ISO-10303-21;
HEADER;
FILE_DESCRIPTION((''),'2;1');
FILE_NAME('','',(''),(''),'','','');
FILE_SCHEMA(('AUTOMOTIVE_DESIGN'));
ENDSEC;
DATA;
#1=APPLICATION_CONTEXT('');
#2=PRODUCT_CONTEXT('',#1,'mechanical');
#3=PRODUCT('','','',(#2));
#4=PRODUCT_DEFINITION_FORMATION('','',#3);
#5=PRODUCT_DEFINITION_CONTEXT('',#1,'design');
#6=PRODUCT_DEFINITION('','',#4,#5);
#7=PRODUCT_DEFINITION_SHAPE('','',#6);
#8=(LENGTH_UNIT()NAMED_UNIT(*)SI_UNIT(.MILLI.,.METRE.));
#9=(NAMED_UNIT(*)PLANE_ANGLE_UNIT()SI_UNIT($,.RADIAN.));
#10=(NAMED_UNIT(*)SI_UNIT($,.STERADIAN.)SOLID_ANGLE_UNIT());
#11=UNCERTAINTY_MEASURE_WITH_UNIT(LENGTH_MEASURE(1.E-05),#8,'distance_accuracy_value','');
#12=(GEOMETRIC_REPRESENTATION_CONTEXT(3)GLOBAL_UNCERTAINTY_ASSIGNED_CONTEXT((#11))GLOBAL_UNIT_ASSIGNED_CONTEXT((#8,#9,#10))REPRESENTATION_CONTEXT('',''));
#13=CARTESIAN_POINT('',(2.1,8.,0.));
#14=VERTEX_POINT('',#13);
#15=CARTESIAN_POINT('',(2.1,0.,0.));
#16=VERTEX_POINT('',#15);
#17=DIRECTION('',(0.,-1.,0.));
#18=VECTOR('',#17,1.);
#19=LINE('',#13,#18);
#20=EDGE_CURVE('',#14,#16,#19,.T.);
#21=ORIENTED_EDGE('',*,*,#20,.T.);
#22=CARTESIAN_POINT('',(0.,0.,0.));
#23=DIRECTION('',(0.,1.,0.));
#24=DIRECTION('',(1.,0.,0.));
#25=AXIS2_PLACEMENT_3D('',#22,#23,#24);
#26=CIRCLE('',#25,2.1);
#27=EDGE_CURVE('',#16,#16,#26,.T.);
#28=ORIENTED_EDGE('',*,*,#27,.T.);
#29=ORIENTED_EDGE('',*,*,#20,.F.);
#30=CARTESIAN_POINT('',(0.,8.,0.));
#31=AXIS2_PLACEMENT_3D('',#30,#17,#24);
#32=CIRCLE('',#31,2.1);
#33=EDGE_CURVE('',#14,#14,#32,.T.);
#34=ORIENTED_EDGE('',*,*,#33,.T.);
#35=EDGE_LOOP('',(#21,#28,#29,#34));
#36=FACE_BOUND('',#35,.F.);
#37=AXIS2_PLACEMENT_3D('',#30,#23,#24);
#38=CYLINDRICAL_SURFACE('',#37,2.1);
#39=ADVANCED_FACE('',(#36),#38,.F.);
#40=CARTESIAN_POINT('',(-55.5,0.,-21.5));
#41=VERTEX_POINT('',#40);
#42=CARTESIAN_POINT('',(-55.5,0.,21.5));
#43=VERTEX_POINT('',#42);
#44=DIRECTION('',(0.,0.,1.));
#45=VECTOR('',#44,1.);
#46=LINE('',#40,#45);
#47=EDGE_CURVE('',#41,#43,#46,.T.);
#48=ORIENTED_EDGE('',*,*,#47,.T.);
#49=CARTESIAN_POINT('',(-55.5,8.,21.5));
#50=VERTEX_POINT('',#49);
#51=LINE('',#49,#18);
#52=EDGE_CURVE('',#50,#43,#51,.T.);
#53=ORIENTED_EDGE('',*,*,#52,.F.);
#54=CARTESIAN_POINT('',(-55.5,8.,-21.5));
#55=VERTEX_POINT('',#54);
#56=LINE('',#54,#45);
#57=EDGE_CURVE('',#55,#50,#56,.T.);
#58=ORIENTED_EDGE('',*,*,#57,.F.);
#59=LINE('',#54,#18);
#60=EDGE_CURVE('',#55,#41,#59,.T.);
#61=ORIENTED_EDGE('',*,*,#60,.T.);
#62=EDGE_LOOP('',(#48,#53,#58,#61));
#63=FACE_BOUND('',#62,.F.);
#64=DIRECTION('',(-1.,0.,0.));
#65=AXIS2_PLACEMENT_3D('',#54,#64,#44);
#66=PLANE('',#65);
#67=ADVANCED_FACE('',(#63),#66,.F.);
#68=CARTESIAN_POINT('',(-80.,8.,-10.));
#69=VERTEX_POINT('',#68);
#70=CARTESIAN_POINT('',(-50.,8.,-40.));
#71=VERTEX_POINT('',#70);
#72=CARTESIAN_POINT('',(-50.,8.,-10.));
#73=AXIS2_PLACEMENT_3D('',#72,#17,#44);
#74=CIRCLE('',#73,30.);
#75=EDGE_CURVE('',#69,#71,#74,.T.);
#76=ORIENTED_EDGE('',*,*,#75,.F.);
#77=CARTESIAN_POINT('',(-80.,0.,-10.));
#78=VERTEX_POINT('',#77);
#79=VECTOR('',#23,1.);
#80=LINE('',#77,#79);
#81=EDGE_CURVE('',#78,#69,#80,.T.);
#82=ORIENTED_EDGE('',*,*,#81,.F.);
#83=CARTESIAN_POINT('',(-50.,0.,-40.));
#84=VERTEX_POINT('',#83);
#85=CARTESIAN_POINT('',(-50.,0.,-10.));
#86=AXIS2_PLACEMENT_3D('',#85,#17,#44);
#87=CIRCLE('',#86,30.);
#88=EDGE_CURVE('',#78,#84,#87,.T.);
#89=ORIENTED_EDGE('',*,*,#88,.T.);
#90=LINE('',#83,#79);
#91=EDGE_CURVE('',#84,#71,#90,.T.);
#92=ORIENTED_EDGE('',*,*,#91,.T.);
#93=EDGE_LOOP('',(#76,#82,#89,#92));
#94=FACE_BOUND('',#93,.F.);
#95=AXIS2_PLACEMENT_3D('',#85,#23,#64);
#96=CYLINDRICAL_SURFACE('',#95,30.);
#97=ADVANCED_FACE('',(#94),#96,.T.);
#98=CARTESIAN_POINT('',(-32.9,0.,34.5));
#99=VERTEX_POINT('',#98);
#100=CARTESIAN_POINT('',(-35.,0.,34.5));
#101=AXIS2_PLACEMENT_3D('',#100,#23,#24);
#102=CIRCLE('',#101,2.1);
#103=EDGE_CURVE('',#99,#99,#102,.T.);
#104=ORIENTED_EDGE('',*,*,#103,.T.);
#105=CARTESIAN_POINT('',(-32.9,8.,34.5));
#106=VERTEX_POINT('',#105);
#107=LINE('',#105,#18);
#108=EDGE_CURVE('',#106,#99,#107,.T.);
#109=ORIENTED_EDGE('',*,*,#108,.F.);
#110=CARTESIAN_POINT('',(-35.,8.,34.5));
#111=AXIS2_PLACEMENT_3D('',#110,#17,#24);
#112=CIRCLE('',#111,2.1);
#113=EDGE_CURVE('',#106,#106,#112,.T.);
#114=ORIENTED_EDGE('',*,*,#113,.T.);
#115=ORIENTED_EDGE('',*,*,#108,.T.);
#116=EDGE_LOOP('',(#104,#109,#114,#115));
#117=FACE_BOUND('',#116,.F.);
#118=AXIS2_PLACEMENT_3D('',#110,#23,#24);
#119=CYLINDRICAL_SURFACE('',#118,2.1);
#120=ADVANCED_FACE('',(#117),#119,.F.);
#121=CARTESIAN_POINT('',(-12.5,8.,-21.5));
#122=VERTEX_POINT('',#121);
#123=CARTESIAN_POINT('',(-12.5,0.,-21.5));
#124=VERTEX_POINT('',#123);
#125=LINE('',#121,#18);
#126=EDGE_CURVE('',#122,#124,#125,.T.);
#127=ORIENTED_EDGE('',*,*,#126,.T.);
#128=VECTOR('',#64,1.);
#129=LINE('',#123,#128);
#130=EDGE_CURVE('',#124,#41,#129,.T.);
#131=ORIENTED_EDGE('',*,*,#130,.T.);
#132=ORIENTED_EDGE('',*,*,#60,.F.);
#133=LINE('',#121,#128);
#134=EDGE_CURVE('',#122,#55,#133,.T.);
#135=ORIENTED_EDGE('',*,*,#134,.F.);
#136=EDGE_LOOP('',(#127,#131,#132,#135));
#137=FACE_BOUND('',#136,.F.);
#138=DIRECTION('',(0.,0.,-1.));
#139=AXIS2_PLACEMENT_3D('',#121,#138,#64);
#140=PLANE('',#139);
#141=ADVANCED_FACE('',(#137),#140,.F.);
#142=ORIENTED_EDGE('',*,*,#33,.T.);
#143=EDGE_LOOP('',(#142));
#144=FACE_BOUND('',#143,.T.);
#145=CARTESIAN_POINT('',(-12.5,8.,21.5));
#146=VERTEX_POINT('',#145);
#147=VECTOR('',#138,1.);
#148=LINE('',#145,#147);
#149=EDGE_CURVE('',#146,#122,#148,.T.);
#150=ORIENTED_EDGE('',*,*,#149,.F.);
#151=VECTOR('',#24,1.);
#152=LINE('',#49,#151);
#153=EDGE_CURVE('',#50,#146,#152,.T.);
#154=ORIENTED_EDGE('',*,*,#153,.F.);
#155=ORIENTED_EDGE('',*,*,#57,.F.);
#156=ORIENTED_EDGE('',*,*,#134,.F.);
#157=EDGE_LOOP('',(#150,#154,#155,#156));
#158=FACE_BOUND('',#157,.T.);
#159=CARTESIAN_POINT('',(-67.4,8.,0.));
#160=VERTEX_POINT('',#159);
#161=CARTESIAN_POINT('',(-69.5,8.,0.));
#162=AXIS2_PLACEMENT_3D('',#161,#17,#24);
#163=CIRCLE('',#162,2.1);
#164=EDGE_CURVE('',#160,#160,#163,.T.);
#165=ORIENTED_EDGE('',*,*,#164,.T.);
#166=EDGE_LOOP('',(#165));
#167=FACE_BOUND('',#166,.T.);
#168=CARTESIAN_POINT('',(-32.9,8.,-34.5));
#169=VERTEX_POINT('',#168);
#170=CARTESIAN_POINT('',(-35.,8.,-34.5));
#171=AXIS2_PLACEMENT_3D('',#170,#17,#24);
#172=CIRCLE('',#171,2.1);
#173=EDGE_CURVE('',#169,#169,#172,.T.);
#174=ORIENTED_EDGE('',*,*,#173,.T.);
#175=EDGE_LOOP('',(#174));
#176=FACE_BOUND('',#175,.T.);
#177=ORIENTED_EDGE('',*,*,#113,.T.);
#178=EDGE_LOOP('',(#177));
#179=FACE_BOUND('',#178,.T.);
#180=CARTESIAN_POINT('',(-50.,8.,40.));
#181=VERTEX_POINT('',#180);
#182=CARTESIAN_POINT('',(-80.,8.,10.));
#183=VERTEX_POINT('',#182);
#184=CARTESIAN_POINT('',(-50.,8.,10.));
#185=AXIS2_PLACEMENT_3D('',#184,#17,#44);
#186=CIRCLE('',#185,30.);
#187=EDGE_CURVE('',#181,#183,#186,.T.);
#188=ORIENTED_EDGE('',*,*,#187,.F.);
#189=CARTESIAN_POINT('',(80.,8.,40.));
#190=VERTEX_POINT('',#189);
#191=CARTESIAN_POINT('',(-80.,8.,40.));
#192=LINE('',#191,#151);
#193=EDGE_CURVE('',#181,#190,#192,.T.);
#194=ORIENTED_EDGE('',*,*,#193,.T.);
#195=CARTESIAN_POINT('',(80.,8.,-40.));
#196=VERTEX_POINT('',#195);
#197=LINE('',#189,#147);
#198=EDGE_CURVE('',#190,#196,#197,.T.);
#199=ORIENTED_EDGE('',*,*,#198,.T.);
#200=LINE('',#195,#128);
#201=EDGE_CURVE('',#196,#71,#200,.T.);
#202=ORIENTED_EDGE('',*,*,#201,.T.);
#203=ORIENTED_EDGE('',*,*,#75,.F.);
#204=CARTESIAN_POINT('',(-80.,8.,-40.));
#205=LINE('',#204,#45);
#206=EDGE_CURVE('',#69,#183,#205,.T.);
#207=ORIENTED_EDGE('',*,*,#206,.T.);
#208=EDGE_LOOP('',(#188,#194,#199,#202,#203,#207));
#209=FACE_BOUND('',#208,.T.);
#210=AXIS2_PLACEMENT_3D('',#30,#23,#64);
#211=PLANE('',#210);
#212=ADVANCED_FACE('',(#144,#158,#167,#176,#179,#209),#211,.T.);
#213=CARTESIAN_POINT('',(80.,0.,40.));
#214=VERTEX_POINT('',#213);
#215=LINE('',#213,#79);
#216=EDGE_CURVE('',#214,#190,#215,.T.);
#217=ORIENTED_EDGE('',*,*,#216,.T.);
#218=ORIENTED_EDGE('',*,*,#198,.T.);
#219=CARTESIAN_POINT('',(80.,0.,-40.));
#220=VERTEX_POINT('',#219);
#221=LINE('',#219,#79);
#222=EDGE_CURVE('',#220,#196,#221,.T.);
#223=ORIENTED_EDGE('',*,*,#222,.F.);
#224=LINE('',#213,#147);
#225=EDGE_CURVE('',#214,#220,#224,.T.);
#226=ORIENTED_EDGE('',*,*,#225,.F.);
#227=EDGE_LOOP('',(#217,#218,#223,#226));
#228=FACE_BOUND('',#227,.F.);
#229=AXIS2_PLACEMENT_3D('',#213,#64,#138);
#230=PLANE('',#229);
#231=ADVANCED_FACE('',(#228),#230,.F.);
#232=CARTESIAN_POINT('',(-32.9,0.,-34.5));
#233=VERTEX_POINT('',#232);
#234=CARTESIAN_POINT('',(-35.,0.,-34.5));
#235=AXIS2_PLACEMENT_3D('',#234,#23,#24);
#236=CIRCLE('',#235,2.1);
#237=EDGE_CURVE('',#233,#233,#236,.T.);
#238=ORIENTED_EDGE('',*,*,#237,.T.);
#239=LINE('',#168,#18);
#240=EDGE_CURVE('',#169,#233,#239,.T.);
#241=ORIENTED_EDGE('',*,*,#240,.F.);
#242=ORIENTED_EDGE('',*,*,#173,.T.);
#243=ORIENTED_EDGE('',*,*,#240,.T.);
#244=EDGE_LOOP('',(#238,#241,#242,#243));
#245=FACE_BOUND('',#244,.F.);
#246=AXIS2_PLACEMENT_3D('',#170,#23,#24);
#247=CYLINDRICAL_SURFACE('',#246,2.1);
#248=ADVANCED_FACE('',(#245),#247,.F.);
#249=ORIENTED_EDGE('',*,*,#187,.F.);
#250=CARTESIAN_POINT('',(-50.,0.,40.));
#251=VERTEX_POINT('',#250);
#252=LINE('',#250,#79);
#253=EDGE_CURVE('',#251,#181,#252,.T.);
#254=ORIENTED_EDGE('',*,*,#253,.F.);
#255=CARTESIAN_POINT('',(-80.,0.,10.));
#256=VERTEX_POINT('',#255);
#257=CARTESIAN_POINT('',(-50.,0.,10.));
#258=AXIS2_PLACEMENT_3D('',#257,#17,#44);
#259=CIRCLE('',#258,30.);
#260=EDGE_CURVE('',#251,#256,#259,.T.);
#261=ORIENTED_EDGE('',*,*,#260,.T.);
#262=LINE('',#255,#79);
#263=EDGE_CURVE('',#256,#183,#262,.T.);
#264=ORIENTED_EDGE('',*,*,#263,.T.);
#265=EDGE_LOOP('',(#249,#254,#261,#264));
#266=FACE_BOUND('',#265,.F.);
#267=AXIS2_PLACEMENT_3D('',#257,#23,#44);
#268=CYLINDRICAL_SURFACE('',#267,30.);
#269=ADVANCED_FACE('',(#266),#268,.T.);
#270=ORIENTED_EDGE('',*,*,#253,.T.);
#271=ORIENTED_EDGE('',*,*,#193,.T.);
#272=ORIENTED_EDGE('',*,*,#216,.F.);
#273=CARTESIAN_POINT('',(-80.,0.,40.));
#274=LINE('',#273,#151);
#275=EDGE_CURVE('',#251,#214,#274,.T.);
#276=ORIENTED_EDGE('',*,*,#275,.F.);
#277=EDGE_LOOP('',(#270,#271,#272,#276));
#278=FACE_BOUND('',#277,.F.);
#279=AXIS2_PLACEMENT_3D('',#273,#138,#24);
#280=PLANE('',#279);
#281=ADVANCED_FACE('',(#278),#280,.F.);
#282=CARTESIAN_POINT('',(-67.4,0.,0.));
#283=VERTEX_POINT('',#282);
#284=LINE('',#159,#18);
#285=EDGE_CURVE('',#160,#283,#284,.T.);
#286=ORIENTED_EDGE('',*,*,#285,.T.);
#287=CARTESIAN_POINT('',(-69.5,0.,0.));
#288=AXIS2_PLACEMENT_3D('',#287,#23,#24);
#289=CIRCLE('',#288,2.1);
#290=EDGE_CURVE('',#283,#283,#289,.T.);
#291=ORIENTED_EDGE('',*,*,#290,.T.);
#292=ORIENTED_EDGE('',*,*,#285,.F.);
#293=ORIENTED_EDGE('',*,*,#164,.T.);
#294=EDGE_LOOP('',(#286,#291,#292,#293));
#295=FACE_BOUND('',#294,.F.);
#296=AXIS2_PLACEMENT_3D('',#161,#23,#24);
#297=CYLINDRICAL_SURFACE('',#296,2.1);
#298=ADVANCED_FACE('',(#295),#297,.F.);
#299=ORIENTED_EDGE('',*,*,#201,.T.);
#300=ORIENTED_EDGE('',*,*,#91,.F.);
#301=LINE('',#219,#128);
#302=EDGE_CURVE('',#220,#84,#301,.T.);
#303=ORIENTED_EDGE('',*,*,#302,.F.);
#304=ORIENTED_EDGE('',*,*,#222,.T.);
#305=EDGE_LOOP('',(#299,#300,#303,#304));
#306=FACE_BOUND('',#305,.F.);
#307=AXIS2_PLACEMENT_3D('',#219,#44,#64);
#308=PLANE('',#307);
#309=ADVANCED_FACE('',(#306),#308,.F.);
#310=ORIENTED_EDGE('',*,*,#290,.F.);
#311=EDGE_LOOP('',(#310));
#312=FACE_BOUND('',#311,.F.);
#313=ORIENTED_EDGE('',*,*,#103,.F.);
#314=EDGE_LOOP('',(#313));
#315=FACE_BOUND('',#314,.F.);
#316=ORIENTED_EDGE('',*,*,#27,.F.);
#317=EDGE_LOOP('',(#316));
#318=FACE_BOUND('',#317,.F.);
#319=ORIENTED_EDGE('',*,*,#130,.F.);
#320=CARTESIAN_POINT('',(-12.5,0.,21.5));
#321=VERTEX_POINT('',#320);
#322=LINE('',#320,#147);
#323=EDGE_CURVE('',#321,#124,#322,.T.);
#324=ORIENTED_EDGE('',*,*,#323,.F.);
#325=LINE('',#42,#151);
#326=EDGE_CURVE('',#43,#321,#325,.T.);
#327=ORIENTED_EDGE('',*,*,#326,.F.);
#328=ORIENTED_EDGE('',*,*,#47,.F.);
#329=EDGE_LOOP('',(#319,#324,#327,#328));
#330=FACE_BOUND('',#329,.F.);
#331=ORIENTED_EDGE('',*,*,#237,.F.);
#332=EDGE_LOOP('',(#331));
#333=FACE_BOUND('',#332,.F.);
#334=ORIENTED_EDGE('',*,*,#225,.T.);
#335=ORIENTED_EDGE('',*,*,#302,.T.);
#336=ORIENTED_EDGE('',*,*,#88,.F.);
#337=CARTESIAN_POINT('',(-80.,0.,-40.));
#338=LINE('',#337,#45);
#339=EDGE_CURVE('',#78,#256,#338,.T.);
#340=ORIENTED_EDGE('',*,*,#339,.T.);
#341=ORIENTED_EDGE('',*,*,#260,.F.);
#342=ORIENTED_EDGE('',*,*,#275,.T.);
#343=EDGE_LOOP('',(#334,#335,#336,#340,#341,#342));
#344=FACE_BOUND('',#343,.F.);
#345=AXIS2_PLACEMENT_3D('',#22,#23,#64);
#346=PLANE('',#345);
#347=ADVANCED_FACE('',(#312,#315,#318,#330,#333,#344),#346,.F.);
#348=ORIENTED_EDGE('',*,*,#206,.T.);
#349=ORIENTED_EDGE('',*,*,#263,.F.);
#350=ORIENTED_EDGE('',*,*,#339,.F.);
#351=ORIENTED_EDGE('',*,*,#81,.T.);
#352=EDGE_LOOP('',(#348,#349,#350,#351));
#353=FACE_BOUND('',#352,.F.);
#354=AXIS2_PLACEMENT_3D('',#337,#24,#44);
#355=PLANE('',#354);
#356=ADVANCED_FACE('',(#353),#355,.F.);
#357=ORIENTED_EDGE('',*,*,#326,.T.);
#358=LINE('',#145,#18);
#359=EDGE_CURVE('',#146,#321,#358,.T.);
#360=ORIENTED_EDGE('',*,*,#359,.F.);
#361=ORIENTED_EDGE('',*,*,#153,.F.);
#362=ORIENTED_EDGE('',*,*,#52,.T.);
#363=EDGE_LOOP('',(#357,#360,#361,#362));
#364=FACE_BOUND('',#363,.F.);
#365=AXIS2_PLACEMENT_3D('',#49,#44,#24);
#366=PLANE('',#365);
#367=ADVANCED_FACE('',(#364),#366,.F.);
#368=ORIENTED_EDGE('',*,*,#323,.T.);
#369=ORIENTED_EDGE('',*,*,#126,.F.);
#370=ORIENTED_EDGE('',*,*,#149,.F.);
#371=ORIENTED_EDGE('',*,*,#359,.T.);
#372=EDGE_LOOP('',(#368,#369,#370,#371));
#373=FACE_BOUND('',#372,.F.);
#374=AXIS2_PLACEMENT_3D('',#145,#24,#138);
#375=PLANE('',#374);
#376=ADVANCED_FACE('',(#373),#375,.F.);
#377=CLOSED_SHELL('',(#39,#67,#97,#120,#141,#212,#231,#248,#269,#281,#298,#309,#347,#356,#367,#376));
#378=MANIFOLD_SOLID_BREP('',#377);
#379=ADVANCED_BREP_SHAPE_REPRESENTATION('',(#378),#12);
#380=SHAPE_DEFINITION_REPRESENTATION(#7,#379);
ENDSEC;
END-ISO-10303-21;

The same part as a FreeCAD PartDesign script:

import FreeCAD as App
import Part
import Sketcher
from FreeCAD import Vector
Q = App.Units.Quantity


def edges_at(feature, points):
    """Names of the edges that pass closest to the given points."""
    edges = feature.Shape.Edges
    near = lambda p: min(range(len(edges)), key=lambda i: edges[i].distToShape(Part.Vertex(*p))[0])
    return sorted({f"Edge{near(p) + 1}" for p in points})


def add_polygon(sketch, points):
    """Adds a closed chain of lines whose ends are joined by coincident constraints."""
    first, n = sketch.GeometryCount, len(points)
    for a, b in zip(points, points[1:] + points[:1]):
        sketch.addGeometry(Part.LineSegment(App.Vector(*a, 0), App.Vector(*b, 0)), False)
    for i in range(n):
        sketch.addConstraint(Sketcher.Constraint("Coincident", first + i, 2, first + (i + 1) % n, 1))

doc = App.newDocument("Part")
params = doc.addObject("Spreadsheet::Sheet", "Params")
for row, (alias, value) in enumerate([
    ("sketch1_width", "160 mm"),
    ("sketch1_height", "80 mm"),
    ("pad1_length", "8 mm"),
    ("sketch2_width", "43 mm"),
    ("pocket1_length", "8 mm"),
    ("sketch3_diameter", "4.2 mm"),
    ("pocket2_length", "8 mm"),
    ("fillet_radius", "30 mm"),
    ("fillet2_radius", "30 mm"),
], start=1):
    params.set(f"A{row}", alias)
    params.set(f"B{row}", "=" + value)
    params.setAlias(f"B{row}", alias)

body = doc.addObject("PartDesign::Body", "Body")

# Sketch on XZ plane
sketch1 = doc.addObject("Sketcher::SketchObject", "Sketch")
body.addObject(sketch1)
sketch1.AttachmentSupport = (doc.XZ_Plane, [""])
sketch1.MapMode = "FlatFace"
add_polygon(sketch1, [(80, 40), (80, -40), (-80, -40), (-80, 40)])  # lines 0-3
sketch1.addConstraint(Sketcher.Constraint("Vertical", 0))
sketch1.addConstraint(Sketcher.Constraint("Horizontal", 1))
sketch1.addConstraint(Sketcher.Constraint("Vertical", 2))
sketch1.addConstraint(Sketcher.Constraint("Horizontal", 3))
sketch1.addConstraint(Sketcher.Constraint("Symmetric", 0, 2, 2, 2, -1, 1))
sketch1.addConstraint(Sketcher.Constraint("DistanceX", 1, 2, 1, 1, Q("160 mm")))
sketch1.addConstraint(Sketcher.Constraint("DistanceY", 0, 2, 0, 1, Q("80 mm")))
sketch1.setExpression("Constraints[9]", "Params.sketch1_width")
sketch1.setExpression("Constraints[10]", "Params.sketch1_height")
pad1 = doc.addObject("PartDesign::Pad", "Pad")
body.addObject(pad1)
pad1.Profile = sketch1
pad1.setExpression("Length", "Params.pad1_length")
pad1.Reversed = True

# Sketch on XZ plane
sketch2 = doc.addObject("Sketcher::SketchObject", "Sketch001")
body.addObject(sketch2)
sketch2.AttachmentSupport = (doc.XZ_Plane, [""])
sketch2.MapMode = "FlatFace"
sketch2.AttachmentOffset = App.Placement(Vector(0, 0, -8), App.Rotation())
add_polygon(sketch2, [(-12.5, 21.5), (-12.5, -21.5), (-55.5, -21.5), (-55.5, 21.5)])  # lines 0-3
sketch2.addConstraint(Sketcher.Constraint("Vertical", 0))
sketch2.addConstraint(Sketcher.Constraint("Horizontal", 1))
sketch2.addConstraint(Sketcher.Constraint("Vertical", 2))
sketch2.addConstraint(Sketcher.Constraint("Horizontal", 3))
sketch2.addConstraint(Sketcher.Constraint("Equal", 3, 0))
sketch2.addConstraint(Sketcher.Constraint("DistanceX", 1, 2, 1, 1, Q("43 mm")))
sketch2.addConstraint(Sketcher.Constraint("DistanceX", 0, 2, -1, 1, Q("12.5 mm")))
sketch2.addConstraint(Sketcher.Constraint("DistanceY", 0, 2, -1, 1, Q("21.5 mm")))
sketch2.setExpression("Constraints[9]", "Params.sketch2_width")
pocket1 = doc.addObject("PartDesign::Pocket", "Pocket")
body.addObject(pocket1)
pocket1.Profile = sketch2
pocket1.setExpression("Length", "Params.pocket1_length")
pocket1.Reversed = True

# Sketch on XZ plane
sketch3 = doc.addObject("Sketcher::SketchObject", "Sketch002")
body.addObject(sketch3)
sketch3.AttachmentSupport = (doc.XZ_Plane, [""])
sketch3.MapMode = "FlatFace"
sketch3.AttachmentOffset = App.Placement(Vector(0, 0, -8), App.Rotation())
sketch3.addGeometry(Part.Circle(Vector(0, 0, 0), Vector(0, 0, 1), 2.1), False)
sketch3.addGeometry(Part.Circle(Vector(-35, -34.5, 0), Vector(0, 0, 1), 2.1), False)
sketch3.addGeometry(Part.Circle(Vector(-35, 34.5, 0), Vector(0, 0, 1), 2.1), False)
sketch3.addGeometry(Part.Circle(Vector(-69.5, 0, 0), Vector(0, 0, 1), 2.1), False)
sketch3.addConstraint(Sketcher.Constraint("Coincident", 0, 3, -1, 1))
sketch3.addConstraint(Sketcher.Constraint("Equal", 0, 1))
sketch3.addConstraint(Sketcher.Constraint("Equal", 1, 2))
sketch3.addConstraint(Sketcher.Constraint("Equal", 2, 3))
sketch3.addConstraint(Sketcher.Constraint("Symmetric", 1, 3, 2, 3, -1))
sketch3.addConstraint(Sketcher.Constraint("PointOnObject", 3, 3, -1))
sketch3.addConstraint(Sketcher.Constraint("Diameter", 0, Q("4.2 mm")))
sketch3.addConstraint(Sketcher.Constraint("DistanceX", 1, 3, -1, 1, Q("35 mm")))
sketch3.addConstraint(Sketcher.Constraint("DistanceY", 1, 3, 2, 3, Q("69 mm")))
sketch3.addConstraint(Sketcher.Constraint("DistanceX", 3, 3, -1, 1, Q("69.5 mm")))
sketch3.setExpression("Constraints[6]", "Params.sketch3_diameter")
pocket2 = doc.addObject("PartDesign::Pocket", "Pocket001")
body.addObject(pocket2)
pocket2.Profile = sketch3
pocket2.setExpression("Length", "Params.pocket2_length")
pocket2.Reversed = True
doc.recompute()

fillet = doc.addObject("PartDesign::Fillet", "Fillet")
body.addObject(fillet)
fillet.Base = (pocket2, edges_at(pocket2, [(-80, 4, 40)]))
fillet.setExpression("Radius", "Params.fillet_radius")
doc.recompute()

fillet2 = doc.addObject("PartDesign::Fillet", "Fillet001")
body.addObject(fillet2)
fillet2.Base = (fillet, edges_at(fillet, [(-80, 4, -40)]))
fillet2.setExpression("Radius", "Params.fillet2_radius")

doc.recompute()
